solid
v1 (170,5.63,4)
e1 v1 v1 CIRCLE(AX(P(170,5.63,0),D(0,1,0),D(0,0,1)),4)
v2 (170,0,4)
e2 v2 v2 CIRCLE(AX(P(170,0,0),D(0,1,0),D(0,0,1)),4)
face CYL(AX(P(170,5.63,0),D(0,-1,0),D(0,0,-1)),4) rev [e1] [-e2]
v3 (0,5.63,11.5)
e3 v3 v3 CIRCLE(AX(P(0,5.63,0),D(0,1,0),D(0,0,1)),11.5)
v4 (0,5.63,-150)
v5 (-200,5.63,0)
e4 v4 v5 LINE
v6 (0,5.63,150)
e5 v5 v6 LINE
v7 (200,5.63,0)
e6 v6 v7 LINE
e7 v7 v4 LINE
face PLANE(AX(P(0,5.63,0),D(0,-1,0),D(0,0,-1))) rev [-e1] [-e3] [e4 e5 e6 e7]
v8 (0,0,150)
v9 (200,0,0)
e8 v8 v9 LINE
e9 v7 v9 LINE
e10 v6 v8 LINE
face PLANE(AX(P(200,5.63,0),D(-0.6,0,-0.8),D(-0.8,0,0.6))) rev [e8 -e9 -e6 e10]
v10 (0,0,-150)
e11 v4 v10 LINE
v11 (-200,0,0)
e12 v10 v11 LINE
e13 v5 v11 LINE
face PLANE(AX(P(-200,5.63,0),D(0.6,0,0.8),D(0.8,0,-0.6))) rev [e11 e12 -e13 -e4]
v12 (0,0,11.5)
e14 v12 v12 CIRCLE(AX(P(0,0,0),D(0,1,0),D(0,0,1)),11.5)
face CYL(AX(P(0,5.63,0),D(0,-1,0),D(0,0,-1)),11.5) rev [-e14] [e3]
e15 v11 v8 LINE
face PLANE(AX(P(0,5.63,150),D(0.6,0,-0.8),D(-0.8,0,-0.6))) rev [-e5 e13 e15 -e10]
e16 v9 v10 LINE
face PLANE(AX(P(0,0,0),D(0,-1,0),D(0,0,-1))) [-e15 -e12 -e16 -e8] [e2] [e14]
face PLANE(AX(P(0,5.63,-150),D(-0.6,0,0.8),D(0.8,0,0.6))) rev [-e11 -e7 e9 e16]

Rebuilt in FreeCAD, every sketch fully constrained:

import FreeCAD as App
import Part
import Sketcher
from FreeCAD import Vector
Q = App.Units.Quantity


def add_polygon(sketch, points):
    """Adds a closed chain of lines whose ends are joined by coincident constraints."""
    first, n = sketch.GeometryCount, len(points)
    for a, b in zip(points, points[1:] + points[:1]):
        sketch.addGeometry(Part.LineSegment(App.Vector(*a, 0), App.Vector(*b, 0)), False)
    for i in range(n):
        sketch.addConstraint(Sketcher.Constraint("Coincident", first + i, 2, first + (i + 1) % n, 1))

doc = App.newDocument("Part")
params = doc.addObject("Spreadsheet::Sheet", "Params")
for row, (alias, value) in enumerate([
    ("sketch1_diameter", "8 mm"),
    ("sketch1_diameter2", "23 mm"),
    ("sketch1_length", "250 mm"),
    ("pad1_length", "5.63 mm"),
], start=1):
    params.set(f"A{row}", alias)
    params.set(f"B{row}", "=" + value)
    params.setAlias(f"B{row}", alias)

body = doc.addObject("PartDesign::Body", "Body")

# Sketch on XZ plane
sketch1 = body.newObject("Sketcher::SketchObject", "Sketch")
sketch1.AttachmentSupport = (doc.getObject("XZ_Plane"), [""])
sketch1.MapMode = "FlatFace"
add_polygon(sketch1, [(200, 0), (0, -150), (-200, 0), (0, 150)])  # lines 0-3
sketch1.addGeometry(Part.Circle(Vector(170, 0, 0), Vector(0, 0, 1), 4), False)  # 4
sketch1.addGeometry(Part.Circle(Vector(0, 0, 0), Vector(0, 0, 1), 11.5), False)  # 5
sketch1.addConstraint(Sketcher.Constraint("Coincident", 5, 3, -1, 1))
sketch1.addConstraint(Sketcher.Constraint("Symmetric", 0, 2, 2, 2, -1, 1))
sketch1.addConstraint(Sketcher.Constraint("Symmetric", 1, 2, 3, 2, -1, 1))
sketch1.addConstraint(Sketcher.Constraint("PointOnObject", 4, 3, -1))
sketch1.addConstraint(Sketcher.Constraint("PointOnObject", 0, 2, -2))
sketch1.addConstraint(Sketcher.Constraint("PointOnObject", 1, 2, -1))
sketch1.addConstraint(Sketcher.Constraint("Diameter", 4, Q("8 mm")))
sketch1.addConstraint(Sketcher.Constraint("Diameter", 5, Q("23 mm")))
sketch1.addConstraint(Sketcher.Constraint("Distance", 0, Q("250 mm")))
sketch1.addConstraint(Sketcher.Constraint("DistanceX", -1, 1, 4, 3, Q("170 mm")))
sketch1.addConstraint(Sketcher.Constraint("DistanceY", 0, 2, -1, 1, Q("150 mm")))
sketch1.setExpression("Constraints[10]", "Params.sketch1_diameter")
sketch1.setExpression("Constraints[11]", "Params.sketch1_diameter2")
sketch1.setExpression("Constraints[12]", "Params.sketch1_length")
pad1 = body.newObject("PartDesign::Pad", "Pad")
pad1.Profile = sketch1
pad1.setExpression("Length", "Params.pad1_length")
pad1.Reversed = True

doc.recompute()
